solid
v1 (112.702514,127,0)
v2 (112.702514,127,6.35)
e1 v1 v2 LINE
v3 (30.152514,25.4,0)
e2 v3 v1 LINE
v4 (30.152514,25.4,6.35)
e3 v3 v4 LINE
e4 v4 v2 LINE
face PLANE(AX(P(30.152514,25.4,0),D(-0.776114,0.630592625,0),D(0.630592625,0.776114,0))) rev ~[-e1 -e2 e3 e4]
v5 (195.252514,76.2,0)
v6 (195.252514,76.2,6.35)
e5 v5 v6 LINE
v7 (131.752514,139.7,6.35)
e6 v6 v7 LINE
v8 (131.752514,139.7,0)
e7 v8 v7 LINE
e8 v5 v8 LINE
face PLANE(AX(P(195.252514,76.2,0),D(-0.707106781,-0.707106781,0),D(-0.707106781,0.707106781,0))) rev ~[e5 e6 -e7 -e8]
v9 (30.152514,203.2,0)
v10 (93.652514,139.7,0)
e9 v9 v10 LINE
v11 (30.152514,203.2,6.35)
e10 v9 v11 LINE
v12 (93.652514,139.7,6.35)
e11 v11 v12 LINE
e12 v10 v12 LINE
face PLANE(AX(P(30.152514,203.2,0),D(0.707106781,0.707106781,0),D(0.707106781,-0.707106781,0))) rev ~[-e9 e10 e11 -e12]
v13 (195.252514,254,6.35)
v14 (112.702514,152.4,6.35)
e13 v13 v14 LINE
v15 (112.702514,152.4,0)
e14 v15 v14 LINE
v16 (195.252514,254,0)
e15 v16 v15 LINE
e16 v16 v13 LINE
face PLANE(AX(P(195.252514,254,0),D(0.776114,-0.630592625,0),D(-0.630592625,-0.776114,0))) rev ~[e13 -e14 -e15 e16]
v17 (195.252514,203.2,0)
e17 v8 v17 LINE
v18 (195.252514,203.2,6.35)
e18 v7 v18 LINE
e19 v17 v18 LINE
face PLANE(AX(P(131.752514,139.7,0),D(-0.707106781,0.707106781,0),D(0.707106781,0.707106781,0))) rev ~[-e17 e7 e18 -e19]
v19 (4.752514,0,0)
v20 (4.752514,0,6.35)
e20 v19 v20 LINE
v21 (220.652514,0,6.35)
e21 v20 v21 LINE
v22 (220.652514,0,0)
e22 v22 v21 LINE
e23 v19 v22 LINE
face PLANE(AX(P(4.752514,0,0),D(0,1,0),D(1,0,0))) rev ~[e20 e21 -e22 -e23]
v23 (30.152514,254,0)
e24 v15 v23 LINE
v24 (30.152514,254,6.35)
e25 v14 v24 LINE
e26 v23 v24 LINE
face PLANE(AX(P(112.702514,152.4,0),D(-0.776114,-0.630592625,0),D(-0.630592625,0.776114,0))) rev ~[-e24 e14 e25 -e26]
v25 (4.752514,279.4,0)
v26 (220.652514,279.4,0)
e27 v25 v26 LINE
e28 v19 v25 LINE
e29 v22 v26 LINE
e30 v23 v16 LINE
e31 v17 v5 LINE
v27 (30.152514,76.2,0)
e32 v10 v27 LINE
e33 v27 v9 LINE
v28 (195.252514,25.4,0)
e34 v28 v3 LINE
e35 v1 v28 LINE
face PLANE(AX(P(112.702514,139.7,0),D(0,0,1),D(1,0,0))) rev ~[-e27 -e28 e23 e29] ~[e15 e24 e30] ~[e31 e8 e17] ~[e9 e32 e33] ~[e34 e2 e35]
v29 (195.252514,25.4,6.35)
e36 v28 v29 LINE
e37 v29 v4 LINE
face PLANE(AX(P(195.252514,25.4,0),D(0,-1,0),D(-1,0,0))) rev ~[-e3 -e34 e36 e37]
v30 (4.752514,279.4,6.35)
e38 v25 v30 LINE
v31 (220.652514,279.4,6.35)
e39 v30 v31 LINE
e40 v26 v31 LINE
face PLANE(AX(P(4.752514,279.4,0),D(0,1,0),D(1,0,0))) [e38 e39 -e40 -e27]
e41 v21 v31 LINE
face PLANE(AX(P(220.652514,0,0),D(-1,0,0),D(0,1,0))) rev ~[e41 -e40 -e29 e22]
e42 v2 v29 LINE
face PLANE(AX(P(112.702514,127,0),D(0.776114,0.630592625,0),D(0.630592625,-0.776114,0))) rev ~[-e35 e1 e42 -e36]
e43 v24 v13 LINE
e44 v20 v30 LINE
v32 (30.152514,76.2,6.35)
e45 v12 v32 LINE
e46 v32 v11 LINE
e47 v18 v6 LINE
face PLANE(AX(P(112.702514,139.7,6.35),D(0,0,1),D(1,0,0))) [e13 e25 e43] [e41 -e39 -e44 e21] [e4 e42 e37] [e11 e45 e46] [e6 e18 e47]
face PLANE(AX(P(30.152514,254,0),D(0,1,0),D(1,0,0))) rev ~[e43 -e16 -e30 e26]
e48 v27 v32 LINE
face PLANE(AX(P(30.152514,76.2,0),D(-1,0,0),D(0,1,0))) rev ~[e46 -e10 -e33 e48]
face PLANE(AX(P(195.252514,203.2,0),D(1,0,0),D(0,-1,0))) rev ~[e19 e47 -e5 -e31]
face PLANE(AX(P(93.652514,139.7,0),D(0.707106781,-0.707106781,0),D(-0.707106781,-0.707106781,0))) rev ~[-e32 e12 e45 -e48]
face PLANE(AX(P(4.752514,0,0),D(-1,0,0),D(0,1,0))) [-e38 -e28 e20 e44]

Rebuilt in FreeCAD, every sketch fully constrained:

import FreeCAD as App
import Part
import Sketcher

V = App.Vector
Q = App.Units.Quantity

doc = App.newDocument("Part")
body = doc.addObject("PartDesign::Body", "Body")

sketch1 = body.newObject("Sketcher::SketchObject", "Sketch")
sketch1.AttachmentSupport = (doc.getObject("XY_Plane"), [""])
sketch1.MapMode = "FlatFace"
sketch1.addGeometry([
    Part.LineSegment(V(5, 279, 0), V(5, 0, 0)),
    Part.LineSegment(V(5, 0, 0), V(221, 0, 0)),
    Part.LineSegment(V(221, 0, 0), V(221, 279, 0)),
    Part.LineSegment(V(221, 279, 0), V(5, 279, 0)),
    Part.LineSegment(V(195, 25, 0), V(30, 25, 0)),
    Part.LineSegment(V(30, 25, 0), V(113, 127, 0)),
    Part.LineSegment(V(113, 127, 0), V(195, 25, 0)),
    Part.LineSegment(V(94, 140, 0), V(30, 76, 0)),
    Part.LineSegment(V(30, 76, 0), V(30, 203, 0)),
    Part.LineSegment(V(30, 203, 0), V(94, 140, 0)),
    Part.LineSegment(V(195, 203, 0), V(195, 76, 0)),
    Part.LineSegment(V(195, 76, 0), V(132, 140, 0)),
    Part.LineSegment(V(132, 140, 0), V(195, 203, 0)),
    Part.LineSegment(V(195, 254, 0), V(113, 152, 0)),
    Part.LineSegment(V(113, 152, 0), V(30, 254, 0)),
    Part.LineSegment(V(30, 254, 0), V(195, 254, 0)),
], False)
sketch1.addConstraint([
    Sketcher.Constraint("Coincident", 0, 2, 1, 1),
    Sketcher.Constraint("Coincident", 1, 2, 2, 1),
    Sketcher.Constraint("Coincident", 2, 2, 3, 1),
    Sketcher.Constraint("Coincident", 3, 2, 0, 1),
    Sketcher.Constraint("Coincident", 4, 2, 5, 1),
    Sketcher.Constraint("Coincident", 5, 2, 6, 1),
    Sketcher.Constraint("Coincident", 6, 2, 4, 1),
    Sketcher.Constraint("Coincident", 7, 2, 8, 1),
    Sketcher.Constraint("Coincident", 8, 2, 9, 1),
    Sketcher.Constraint("Coincident", 9, 2, 7, 1),
    Sketcher.Constraint("Coincident", 10, 2, 11, 1),
    Sketcher.Constraint("Coincident", 11, 2, 12, 1),
    Sketcher.Constraint("Coincident", 12, 2, 10, 1),
    Sketcher.Constraint("Coincident", 13, 2, 14, 1),
    Sketcher.Constraint("Coincident", 14, 2, 15, 1),
    Sketcher.Constraint("Coincident", 15, 2, 13, 1),
    Sketcher.Constraint("Vertical", 0),
    Sketcher.Constraint("Horizontal", 1),
    Sketcher.Constraint("Vertical", 2),
    Sketcher.Constraint("Horizontal", 3),
    Sketcher.Constraint("Horizontal", 4),
    Sketcher.Constraint("Vertical", 8),
    Sketcher.Constraint("Vertical", 10),
    Sketcher.Constraint("Horizontal", 15),
    Sketcher.Constraint("PointOnObject", 0, 2, -1),
    Sketcher.Constraint("Perpendicular", 7, 9),
    Sketcher.Constraint("Parallel", 9, 11),
    Sketcher.Constraint("Perpendicular", 11, 12),
    Sketcher.Constraint("Parallel", 5, 13),
    Sketcher.Constraint("Parallel", 6, 14),
    Sketcher.Constraint("Horizontal", 7, 2, 10, 2),
    Sketcher.Constraint("Horizontal", 9, 2, 11, 2),
    Sketcher.Constraint("Horizontal", 8, 2, 12, 2),
    Sketcher.Constraint("Vertical", 4, 2, 7, 2),
    Sketcher.Constraint("Vertical", 6, 2, 10, 2),
    Sketcher.Constraint("Vertical", 5, 2, 13, 2),
    Sketcher.Constraint("Vertical", 8, 2, 14, 2),
    Sketcher.Constraint("Vertical", 12, 2, 15, 2),
    Sketcher.Constraint("DistanceY", 0, 2, 0, 1, Q("11 in")),
    Sketcher.Constraint("DistanceY", 8, 1, 8, 2, Q("5 in")),
    Sketcher.Constraint("DistanceX", 1, 1, 1, 2, Q("8.5 in")),
    Sketcher.Constraint("DistanceX", 4, 2, 4, 1, Q("6.5 in")),
    Sketcher.Constraint("DistanceY", -1, 1, 4, 2, Q("1 in")),
    Sketcher.Constraint("DistanceY", -1, 1, 5, 2, Q("5 in")),
    Sketcher.Constraint("DistanceY", -1, 1, 7, 2, Q("3 in")),
    Sketcher.Constraint("DistanceY", -1, 1, 13, 2, Q("6 in")),
    Sketcher.Constraint("DistanceX", 0, 2, 4, 2, Q("1 in")),
    Sketcher.Constraint("DistanceX", -1, 1, 0, 2, 4.752514),
])
pad1 = body.newObject("PartDesign::Pad", "Pad")
pad1.Profile = sketch1
pad1.Length = Q("0.25 in")

doc.recompute()
